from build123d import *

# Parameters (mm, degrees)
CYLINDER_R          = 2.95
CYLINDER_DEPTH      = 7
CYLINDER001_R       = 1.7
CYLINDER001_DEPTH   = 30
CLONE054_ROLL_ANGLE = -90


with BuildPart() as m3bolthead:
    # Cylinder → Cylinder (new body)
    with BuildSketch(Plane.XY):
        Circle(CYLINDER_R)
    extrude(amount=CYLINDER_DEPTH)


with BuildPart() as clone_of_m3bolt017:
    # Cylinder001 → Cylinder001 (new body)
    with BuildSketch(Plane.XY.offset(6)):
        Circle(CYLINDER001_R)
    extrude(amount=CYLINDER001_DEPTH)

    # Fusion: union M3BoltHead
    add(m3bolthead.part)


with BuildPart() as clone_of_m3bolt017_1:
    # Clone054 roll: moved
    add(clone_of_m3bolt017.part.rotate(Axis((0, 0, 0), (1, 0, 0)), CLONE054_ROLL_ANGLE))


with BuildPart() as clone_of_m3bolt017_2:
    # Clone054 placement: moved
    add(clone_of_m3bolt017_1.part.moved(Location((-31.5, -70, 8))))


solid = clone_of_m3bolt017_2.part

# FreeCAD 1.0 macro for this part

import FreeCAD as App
import Part
import Sketcher
Q = App.Units.Quantity

doc = App.newDocument("Part")
params = doc.addObject("Spreadsheet::Sheet", "Params")
for row, (alias, value) in enumerate([
    ("sketch1_diameter", "5.9 mm"),
    ("pad1_length", "7 mm"),
    ("sketch2_diameter", "3.4 mm"),
    ("pad2_length", "30 mm"),
], start=1):
    params.set(f"A{row}", alias)
    params.set(f"B{row}", "=" + value)
    params.setAlias(f"B{row}", alias)

body = doc.addObject("PartDesign::Body", "Body")

# Sketch on XY plane
sketch1 = body.newObject("Sketcher::SketchObject", "Sketch")
sketch1.AttachmentSupport = (doc.getObject("XY_Plane"), [""])
sketch1.MapMode = "FlatFace"
sketch1.addGeometry(Part.Circle(App.Vector(0, 0, 0), App.Vector(0, 0, 1), 3), False)
sketch1.addConstraint(Sketcher.Constraint("Coincident", 0, 3, -1, 1))
sketch1.addConstraint(Sketcher.Constraint("Diameter", 0, Q("5.9 mm")))
sketch1.setExpression("Constraints[1]", "Params.sketch1_diameter")
pad1 = body.newObject("PartDesign::Pad", "Pad")
pad1.Profile = sketch1
pad1.setExpression("Length", "Params.pad1_length")
body2 = doc.addObject("PartDesign::Body", "Body001")

# Sketch on XY plane
sketch2 = body2.newObject("Sketcher::SketchObject", "Sketch001")
sketch2.AttachmentSupport = (doc.getObject("XY_Plane001"), [""])
sketch2.MapMode = "FlatFace"
sketch2.AttachmentOffset = App.Placement(App.Vector(0, 0, 6), App.Rotation())
sketch2.addGeometry(Part.Circle(App.Vector(0, 0, 0), App.Vector(0, 0, 1), 1.7), False)
sketch2.addConstraint(Sketcher.Constraint("Coincident", 0, 3, -1, 1))
sketch2.addConstraint(Sketcher.Constraint("Diameter", 0, Q("3.4 mm")))
sketch2.setExpression("Constraints[1]", "Params.sketch2_diameter")
pad2 = body2.newObject("PartDesign::Pad", "Pad001")
pad2.Profile = sketch2
pad2.setExpression("Length", "Params.pad2_length")
doc.recompute()

boolean = body2.newObject("PartDesign::Boolean", "Boolean")
boolean.Type = "Fuse"
boolean.addObjects([body])
body3 = doc.addObject("PartDesign::Body", "Body002")
doc.recompute()

body2.Placement = App.Placement(App.Vector(0, 0, 0), App.Rotation(App.Vector(1, 0, 0), 270))
boolean2 = body3.newObject("PartDesign::Boolean", "Boolean001")
boolean2.Type = "Fuse"
boolean2.addObjects([body2])
body4 = doc.addObject("PartDesign::Body", "Body003")
doc.recompute()

body3.Placement = App.Placement(App.Vector(-31.5, -70, 8), App.Rotation(App.Vector(0, 0, 1), 0))
boolean3 = body4.newObject("PartDesign::Boolean", "Boolean002")
boolean3.Type = "Fuse"
boolean3.addObjects([body3])

doc.recompute()
